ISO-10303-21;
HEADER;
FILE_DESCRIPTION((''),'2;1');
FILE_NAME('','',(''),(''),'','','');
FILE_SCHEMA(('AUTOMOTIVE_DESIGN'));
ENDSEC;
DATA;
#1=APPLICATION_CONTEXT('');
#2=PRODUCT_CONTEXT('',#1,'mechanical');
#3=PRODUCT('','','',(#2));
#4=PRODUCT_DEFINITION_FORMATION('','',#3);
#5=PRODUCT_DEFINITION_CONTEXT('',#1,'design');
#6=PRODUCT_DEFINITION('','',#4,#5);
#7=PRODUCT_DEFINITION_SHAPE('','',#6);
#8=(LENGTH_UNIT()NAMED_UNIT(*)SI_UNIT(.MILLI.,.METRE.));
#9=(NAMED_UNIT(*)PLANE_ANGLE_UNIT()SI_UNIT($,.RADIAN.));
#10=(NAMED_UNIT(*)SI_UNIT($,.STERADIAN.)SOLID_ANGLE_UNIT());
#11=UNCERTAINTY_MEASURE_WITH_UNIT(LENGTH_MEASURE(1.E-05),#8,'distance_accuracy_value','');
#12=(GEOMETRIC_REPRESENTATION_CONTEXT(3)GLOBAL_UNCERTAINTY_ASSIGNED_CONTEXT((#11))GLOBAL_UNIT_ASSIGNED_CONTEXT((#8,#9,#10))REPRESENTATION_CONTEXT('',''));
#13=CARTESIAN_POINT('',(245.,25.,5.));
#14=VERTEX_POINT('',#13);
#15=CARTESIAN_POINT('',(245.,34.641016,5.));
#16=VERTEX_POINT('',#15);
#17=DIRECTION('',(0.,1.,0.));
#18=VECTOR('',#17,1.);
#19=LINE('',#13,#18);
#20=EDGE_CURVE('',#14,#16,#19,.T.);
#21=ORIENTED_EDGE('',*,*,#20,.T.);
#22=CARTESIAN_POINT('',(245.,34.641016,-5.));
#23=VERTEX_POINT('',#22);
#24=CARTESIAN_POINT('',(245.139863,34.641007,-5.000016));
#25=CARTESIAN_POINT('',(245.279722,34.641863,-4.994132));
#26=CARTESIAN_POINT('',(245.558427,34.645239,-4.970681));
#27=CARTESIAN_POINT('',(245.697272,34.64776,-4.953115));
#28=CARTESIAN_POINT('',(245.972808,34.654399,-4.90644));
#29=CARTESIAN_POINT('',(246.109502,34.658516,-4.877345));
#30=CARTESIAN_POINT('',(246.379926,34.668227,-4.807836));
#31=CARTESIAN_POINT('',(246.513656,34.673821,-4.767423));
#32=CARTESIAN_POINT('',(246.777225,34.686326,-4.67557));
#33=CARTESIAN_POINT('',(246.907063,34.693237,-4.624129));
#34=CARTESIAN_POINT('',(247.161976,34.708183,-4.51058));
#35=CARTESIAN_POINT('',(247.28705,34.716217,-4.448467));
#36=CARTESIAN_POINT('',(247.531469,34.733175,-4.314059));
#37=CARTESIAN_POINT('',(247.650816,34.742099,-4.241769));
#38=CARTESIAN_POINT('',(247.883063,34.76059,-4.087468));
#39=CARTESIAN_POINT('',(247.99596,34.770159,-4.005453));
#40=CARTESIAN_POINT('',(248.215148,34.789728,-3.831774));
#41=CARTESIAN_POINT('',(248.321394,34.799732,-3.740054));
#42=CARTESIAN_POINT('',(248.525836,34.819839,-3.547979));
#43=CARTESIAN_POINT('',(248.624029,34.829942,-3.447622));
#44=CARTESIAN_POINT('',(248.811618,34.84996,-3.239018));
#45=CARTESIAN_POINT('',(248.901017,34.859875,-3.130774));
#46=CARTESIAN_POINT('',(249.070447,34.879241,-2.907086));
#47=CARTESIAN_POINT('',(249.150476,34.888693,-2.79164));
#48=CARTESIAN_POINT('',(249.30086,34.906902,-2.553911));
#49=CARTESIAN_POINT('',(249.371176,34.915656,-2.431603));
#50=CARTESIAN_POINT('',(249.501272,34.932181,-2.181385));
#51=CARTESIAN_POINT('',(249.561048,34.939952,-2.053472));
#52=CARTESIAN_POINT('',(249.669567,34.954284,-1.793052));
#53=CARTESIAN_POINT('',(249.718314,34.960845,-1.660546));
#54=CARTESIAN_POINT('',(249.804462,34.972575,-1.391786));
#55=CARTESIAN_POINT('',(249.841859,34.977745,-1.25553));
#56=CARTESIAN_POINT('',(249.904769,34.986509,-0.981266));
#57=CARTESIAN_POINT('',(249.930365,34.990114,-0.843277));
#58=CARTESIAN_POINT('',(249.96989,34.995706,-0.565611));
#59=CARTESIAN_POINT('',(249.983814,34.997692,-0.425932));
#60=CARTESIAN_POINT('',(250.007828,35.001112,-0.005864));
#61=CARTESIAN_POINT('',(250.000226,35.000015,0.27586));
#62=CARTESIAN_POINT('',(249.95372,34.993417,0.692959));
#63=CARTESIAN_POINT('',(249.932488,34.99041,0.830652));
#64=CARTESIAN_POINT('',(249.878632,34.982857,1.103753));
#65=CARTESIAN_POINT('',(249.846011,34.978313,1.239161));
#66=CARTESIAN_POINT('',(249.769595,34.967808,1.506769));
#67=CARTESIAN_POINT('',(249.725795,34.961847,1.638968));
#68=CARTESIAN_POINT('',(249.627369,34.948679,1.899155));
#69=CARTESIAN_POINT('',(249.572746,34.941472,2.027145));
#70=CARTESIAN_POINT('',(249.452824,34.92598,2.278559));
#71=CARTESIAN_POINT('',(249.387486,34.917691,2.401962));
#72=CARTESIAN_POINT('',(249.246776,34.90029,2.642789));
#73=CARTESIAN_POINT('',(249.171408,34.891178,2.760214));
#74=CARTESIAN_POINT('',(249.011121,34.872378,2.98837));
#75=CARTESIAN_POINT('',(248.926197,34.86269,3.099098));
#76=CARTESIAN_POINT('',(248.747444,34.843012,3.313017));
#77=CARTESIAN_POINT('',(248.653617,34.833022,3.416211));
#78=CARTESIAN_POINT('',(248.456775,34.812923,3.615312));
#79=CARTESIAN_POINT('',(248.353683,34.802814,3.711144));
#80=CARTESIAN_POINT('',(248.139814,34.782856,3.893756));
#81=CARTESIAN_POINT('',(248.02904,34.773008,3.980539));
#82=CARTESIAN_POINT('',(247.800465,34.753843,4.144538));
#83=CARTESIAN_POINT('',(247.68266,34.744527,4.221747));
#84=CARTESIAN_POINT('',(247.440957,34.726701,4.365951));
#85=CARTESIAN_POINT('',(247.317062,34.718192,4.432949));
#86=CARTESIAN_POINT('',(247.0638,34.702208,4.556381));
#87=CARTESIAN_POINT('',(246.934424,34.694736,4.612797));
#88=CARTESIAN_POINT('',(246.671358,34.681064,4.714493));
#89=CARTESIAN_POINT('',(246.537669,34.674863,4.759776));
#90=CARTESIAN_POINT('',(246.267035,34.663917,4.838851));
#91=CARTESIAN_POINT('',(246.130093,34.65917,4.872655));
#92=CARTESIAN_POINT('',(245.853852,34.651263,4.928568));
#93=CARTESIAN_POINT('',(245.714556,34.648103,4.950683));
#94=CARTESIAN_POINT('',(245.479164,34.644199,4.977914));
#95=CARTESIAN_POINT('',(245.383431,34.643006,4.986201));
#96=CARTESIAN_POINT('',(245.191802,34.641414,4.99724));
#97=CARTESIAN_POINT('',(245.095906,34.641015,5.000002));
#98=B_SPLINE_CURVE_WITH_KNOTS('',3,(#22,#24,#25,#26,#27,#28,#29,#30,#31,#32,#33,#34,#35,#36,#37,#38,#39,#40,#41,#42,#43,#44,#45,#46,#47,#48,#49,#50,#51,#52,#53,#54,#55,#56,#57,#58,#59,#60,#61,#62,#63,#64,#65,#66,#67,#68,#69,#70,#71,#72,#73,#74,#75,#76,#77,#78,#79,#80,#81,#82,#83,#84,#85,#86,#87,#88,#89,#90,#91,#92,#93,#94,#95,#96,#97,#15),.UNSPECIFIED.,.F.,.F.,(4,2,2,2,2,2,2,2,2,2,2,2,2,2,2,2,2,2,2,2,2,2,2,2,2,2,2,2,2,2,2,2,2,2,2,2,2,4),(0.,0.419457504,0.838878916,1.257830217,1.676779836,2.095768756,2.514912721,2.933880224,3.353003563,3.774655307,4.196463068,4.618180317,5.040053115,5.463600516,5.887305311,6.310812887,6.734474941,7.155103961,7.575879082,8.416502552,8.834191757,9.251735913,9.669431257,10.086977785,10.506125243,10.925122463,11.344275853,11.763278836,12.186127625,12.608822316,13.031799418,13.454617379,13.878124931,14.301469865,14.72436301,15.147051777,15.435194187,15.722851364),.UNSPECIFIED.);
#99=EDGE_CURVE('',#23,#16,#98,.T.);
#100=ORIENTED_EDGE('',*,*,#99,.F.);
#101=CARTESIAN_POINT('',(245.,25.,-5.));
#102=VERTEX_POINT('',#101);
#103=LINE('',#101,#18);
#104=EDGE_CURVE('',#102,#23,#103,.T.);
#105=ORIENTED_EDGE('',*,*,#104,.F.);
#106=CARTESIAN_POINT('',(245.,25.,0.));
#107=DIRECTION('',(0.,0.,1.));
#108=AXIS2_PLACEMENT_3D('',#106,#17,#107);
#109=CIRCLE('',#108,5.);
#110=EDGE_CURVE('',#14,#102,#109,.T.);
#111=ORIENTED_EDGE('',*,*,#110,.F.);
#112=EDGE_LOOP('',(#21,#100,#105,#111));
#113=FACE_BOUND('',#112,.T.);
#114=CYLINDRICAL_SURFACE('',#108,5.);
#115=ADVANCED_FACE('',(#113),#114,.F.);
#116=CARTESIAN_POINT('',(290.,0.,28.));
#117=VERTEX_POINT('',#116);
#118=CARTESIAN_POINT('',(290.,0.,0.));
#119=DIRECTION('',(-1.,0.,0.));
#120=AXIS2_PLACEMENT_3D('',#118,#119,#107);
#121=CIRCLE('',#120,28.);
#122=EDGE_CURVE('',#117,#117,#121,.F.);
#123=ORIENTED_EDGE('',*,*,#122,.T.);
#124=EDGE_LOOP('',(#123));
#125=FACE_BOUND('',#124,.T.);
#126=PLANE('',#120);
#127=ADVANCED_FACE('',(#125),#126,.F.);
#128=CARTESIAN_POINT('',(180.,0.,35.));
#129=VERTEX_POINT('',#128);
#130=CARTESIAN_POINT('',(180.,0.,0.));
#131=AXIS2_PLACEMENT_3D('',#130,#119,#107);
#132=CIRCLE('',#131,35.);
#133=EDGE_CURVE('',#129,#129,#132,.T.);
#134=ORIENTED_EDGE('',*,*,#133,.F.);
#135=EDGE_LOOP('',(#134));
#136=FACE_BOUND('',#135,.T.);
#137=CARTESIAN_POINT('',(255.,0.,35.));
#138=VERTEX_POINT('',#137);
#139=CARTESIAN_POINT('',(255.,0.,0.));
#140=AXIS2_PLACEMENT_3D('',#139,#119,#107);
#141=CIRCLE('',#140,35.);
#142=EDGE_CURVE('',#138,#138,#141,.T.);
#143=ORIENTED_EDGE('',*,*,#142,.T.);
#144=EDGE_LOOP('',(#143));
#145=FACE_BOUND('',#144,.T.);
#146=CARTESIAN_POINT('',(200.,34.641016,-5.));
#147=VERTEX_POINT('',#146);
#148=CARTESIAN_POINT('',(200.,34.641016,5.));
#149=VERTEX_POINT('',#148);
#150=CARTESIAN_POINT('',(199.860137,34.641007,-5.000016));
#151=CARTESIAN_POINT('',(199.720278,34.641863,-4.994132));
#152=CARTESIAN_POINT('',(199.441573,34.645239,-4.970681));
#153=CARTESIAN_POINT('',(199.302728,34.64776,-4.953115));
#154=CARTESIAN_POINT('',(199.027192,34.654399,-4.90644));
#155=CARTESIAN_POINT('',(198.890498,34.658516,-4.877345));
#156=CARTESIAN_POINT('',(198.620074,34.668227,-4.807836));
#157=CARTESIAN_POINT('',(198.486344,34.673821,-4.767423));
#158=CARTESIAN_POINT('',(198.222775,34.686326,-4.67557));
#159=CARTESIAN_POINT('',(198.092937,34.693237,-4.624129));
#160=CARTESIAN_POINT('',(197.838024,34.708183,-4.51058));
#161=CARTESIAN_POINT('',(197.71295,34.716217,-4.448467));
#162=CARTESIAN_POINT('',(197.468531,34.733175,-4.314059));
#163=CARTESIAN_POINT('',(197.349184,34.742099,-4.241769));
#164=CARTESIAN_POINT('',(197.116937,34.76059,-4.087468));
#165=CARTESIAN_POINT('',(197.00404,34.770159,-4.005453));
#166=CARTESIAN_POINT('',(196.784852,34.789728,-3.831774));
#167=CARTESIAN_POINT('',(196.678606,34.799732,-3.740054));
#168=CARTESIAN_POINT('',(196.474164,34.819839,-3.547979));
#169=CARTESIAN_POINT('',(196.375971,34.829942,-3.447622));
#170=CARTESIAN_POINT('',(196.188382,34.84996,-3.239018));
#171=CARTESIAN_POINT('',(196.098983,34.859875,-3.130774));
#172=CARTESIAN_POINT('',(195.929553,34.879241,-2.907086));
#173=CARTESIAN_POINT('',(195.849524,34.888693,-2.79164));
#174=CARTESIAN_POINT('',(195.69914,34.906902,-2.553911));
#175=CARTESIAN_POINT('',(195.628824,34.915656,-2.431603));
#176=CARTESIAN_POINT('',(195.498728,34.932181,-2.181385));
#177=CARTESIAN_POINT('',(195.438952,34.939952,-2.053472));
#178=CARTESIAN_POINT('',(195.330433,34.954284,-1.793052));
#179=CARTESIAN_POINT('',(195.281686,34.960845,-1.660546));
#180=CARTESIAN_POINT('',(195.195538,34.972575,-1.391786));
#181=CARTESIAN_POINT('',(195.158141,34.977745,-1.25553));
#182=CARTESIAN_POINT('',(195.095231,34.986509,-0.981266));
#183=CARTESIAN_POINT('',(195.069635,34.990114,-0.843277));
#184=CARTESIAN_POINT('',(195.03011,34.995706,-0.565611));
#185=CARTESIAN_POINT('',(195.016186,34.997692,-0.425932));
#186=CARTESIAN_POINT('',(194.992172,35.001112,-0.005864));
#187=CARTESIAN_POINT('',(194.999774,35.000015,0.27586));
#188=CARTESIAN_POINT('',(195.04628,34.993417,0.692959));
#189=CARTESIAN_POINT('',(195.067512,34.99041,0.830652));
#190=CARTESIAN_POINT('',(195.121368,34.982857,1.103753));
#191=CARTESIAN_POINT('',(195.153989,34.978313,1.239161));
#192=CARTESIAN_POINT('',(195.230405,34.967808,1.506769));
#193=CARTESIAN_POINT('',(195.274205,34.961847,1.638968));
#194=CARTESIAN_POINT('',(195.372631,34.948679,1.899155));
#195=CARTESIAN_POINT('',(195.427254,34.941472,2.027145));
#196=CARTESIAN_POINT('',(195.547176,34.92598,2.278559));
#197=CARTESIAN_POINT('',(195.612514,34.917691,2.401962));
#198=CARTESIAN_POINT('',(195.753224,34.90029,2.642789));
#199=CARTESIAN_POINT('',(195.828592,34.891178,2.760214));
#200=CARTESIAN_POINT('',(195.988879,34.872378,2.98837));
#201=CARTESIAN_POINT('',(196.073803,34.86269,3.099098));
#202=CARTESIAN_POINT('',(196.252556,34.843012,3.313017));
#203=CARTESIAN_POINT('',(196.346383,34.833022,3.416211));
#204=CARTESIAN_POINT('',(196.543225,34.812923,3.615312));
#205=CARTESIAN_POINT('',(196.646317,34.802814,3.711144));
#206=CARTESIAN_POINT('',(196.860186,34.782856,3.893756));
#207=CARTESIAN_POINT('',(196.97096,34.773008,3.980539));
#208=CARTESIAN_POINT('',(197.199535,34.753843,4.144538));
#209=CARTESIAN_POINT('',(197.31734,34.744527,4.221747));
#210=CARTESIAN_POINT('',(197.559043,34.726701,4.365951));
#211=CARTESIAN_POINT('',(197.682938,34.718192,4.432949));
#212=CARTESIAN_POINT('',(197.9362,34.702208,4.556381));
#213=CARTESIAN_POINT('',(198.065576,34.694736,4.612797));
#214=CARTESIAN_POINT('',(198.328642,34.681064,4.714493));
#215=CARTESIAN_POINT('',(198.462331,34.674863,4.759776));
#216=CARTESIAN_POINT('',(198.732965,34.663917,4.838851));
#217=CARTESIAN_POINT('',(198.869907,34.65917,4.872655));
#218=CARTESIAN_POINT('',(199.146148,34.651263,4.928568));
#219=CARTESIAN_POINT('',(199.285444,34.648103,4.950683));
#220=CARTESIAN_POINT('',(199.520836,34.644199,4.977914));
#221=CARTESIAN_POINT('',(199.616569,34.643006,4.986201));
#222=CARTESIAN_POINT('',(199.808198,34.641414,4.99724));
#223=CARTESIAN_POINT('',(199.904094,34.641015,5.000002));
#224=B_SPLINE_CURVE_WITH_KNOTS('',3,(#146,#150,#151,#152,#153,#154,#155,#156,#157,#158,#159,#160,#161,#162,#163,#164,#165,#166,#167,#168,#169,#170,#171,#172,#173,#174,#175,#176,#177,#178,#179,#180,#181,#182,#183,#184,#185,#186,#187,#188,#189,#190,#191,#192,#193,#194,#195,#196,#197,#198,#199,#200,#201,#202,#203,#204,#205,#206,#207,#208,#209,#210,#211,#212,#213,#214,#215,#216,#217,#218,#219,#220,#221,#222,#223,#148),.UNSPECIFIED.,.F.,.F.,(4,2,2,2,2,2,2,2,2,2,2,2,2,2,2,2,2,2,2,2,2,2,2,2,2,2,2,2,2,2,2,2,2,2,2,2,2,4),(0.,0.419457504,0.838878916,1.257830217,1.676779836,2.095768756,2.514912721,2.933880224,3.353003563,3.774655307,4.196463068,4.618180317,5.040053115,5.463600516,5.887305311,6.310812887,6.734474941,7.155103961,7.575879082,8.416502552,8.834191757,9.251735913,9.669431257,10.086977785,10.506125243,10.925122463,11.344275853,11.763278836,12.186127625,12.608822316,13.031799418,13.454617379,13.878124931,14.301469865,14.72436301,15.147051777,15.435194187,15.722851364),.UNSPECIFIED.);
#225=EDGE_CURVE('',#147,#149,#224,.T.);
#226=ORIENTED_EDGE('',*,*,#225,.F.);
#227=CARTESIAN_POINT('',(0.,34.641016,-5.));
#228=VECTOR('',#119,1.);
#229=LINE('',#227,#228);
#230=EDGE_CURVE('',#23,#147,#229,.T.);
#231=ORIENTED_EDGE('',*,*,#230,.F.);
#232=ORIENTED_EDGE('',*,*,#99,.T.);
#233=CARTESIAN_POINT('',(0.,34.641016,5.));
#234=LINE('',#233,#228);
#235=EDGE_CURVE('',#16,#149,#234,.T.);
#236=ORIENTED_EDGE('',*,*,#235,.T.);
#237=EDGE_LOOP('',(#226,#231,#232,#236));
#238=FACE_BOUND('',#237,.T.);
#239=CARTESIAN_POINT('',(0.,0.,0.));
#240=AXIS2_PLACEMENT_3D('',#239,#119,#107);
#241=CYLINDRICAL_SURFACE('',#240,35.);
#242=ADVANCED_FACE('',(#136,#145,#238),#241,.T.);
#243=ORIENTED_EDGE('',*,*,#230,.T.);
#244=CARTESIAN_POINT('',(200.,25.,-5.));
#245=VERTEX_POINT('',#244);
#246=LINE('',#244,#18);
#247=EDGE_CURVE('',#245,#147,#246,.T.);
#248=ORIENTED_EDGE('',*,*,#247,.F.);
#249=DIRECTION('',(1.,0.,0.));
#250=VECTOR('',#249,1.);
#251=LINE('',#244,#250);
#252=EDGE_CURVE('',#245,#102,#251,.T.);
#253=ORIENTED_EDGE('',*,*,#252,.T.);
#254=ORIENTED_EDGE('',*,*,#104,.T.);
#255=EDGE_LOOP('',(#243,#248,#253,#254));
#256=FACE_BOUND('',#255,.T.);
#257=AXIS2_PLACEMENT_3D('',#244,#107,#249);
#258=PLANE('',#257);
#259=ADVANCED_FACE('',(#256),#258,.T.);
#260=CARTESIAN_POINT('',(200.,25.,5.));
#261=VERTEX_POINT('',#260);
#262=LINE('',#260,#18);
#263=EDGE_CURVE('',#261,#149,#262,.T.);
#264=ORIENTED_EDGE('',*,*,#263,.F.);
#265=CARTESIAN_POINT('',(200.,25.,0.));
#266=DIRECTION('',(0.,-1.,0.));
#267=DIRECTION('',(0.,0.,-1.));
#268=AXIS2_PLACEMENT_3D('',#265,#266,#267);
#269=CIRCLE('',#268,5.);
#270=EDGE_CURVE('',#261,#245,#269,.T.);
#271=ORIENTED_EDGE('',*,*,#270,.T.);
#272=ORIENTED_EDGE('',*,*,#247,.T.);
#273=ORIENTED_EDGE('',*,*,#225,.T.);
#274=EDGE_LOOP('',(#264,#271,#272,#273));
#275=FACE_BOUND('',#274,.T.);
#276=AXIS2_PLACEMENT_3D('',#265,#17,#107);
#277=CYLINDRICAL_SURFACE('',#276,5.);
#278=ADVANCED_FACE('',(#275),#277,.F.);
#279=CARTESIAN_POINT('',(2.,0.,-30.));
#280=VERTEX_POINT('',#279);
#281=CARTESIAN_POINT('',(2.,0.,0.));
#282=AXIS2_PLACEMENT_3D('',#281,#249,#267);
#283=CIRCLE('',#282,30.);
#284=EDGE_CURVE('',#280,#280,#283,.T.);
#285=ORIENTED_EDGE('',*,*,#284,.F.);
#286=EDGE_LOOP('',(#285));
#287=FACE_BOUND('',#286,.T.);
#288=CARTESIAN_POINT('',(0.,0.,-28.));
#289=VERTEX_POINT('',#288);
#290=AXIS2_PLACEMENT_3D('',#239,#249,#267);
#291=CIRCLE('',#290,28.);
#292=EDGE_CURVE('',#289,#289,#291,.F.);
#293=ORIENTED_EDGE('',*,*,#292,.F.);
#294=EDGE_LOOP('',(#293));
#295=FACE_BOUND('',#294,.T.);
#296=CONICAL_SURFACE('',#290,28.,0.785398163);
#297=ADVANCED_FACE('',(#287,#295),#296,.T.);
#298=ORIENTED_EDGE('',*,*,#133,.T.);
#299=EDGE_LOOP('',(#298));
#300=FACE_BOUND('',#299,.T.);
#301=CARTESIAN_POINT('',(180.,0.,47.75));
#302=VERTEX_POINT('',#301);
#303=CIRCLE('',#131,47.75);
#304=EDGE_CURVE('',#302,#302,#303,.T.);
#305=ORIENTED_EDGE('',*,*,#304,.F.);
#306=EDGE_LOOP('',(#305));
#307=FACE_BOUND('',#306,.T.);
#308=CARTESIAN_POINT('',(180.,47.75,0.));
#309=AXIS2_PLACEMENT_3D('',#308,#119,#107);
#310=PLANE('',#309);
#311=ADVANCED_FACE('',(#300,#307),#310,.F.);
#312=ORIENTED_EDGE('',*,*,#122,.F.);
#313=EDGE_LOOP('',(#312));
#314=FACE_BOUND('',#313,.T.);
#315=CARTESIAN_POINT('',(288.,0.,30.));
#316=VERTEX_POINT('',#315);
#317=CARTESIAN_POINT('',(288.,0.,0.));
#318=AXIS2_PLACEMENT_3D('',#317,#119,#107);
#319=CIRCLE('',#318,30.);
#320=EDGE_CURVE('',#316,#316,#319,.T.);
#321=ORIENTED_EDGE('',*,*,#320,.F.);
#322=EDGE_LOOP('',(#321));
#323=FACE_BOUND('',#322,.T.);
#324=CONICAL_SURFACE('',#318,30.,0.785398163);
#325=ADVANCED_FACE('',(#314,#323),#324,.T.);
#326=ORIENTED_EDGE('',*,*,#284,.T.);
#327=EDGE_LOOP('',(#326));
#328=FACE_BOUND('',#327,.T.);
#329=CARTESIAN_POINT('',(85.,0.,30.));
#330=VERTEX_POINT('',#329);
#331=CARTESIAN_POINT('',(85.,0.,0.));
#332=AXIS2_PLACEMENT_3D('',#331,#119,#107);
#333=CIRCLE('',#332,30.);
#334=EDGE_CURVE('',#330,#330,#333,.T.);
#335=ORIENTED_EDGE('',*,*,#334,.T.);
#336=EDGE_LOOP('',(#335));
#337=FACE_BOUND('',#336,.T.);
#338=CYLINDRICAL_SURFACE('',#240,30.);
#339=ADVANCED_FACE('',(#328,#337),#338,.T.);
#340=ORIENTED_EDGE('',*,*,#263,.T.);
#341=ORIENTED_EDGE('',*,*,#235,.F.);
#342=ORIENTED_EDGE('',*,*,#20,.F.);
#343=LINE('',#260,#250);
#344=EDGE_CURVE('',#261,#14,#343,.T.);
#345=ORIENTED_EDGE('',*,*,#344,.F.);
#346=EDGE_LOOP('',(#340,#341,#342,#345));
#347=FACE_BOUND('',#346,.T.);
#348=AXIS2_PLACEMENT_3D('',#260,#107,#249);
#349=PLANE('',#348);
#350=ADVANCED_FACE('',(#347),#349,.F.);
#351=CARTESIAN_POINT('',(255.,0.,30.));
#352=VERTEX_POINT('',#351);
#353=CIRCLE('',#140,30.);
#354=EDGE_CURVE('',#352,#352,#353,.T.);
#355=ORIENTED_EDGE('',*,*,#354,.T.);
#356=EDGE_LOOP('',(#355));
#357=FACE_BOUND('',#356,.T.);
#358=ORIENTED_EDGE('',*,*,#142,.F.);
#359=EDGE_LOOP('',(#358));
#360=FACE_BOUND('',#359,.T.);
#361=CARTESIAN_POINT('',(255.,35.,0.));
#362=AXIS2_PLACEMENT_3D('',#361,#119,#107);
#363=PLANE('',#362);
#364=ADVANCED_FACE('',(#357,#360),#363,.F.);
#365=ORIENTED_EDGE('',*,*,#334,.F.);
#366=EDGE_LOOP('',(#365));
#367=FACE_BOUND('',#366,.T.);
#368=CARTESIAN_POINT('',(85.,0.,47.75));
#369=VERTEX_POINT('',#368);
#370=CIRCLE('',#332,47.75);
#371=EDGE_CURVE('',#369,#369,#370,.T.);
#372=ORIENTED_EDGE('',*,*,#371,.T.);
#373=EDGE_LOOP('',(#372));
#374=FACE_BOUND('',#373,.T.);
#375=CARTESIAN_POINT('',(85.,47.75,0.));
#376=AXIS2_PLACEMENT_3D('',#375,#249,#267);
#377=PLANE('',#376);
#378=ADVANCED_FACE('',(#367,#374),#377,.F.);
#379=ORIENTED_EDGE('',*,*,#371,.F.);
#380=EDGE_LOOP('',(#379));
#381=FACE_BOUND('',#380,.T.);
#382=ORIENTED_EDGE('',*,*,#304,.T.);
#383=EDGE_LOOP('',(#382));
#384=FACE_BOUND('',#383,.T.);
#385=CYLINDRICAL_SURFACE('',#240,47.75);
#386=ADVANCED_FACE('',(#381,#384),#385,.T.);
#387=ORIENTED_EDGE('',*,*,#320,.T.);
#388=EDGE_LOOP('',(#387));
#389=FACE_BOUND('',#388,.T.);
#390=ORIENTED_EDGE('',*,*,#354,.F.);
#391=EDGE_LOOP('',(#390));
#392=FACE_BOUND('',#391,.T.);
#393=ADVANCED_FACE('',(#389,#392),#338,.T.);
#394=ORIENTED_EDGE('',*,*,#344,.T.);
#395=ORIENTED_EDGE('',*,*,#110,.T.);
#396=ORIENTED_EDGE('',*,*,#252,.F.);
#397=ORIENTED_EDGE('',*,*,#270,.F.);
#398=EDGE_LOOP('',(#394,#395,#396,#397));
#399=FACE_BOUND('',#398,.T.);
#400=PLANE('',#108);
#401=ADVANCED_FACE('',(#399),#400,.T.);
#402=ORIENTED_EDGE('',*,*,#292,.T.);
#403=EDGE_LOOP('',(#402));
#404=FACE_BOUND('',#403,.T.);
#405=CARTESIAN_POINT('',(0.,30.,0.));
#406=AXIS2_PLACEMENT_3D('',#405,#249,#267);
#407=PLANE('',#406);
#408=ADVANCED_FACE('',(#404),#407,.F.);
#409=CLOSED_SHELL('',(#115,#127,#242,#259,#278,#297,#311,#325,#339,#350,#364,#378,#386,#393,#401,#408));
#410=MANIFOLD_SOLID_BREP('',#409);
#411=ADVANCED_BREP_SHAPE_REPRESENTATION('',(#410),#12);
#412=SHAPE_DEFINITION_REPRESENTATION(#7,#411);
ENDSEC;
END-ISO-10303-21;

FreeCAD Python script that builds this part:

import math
import FreeCAD as App
import Part
import Sketcher


def edges_at(feature, points):
    """Names of the edges that pass closest to the given points."""
    edges = feature.Shape.Edges
    near = lambda p: min(range(len(edges)), key=lambda i: edges[i].distToShape(Part.Vertex(*p))[0])
    return sorted({f"Edge{near(p) + 1}" for p in points})


def add_polygon(sketch, points):
    """Adds a closed chain of lines whose ends are joined by coincident constraints."""
    first, n = sketch.GeometryCount, len(points)
    for a, b in zip(points, points[1:] + points[:1]):
        sketch.addGeometry(Part.LineSegment(App.Vector(*a, 0), App.Vector(*b, 0)), False)
    for i in range(n):
        sketch.addConstraint(Sketcher.Constraint("Coincident", first + i, 2, first + (i + 1) % n, 1))

doc = App.newDocument("Part")
body = doc.addObject("PartDesign::Body", "Body")

sketch1 = body.newObject("Sketcher::SketchObject", "Sketch")
sketch1.AttachmentSupport = (doc.getObject("XY_Plane"), [""])
sketch1.MapMode = "FlatFace"
add_polygon(sketch1, [(0, 0), (290, 0), (290, 30), (255, 30), (255, 35), (180, 35), (180, 48), (85, 48), (85, 30), (0, 30)])
sketch1.addConstraint([
    Sketcher.Constraint("Horizontal", 0),
    Sketcher.Constraint("Vertical", 1),
    Sketcher.Constraint("Horizontal", 2),
    Sketcher.Constraint("Vertical", 3),
    Sketcher.Constraint("Horizontal", 4),
    Sketcher.Constraint("Vertical", 5),
    Sketcher.Constraint("Horizontal", 6),
    Sketcher.Constraint("Vertical", 7),
    Sketcher.Constraint("Horizontal", 8),
    Sketcher.Constraint("Vertical", 9),
    Sketcher.Constraint("Coincident", 9, 2, -1, 1),
    Sketcher.Constraint("Horizontal", 2, 2, 7, 2),
    Sketcher.Constraint("DistanceX", 0, 1, 0, 2, 290.0),
    Sketcher.Constraint("DistanceX", 2, 2, 2, 1, 35.0),
    Sketcher.Constraint("DistanceX", 4, 2, 4, 1, 75.0),
    Sketcher.Constraint("DistanceX", 6, 2, 6, 1, 95.0),
    Sketcher.Constraint("DistanceY", 1, 1, 1, 2, 30.0),
    Sketcher.Constraint("DistanceY", 3, 1, 3, 2, 5.0),
    Sketcher.Constraint("DistanceY", 5, 1, 5, 2, 12.75),
])
revolution = body.newObject("PartDesign::Revolution", "Revolution")
revolution.Profile = sketch1
revolution.ReferenceAxis = (sketch1, ["H_Axis"])
revolution.Angle = 360
doc.recompute()

chamfer = body.newObject("PartDesign::Chamfer", "Chamfer")
chamfer.Base = (revolution, edges_at(revolution, [(290, 0, -30), (0, 0, -30)]))
chamfer.Size = 2

sketch2 = body.newObject("Sketcher::SketchObject", "Sketch001")
sketch2.AttachmentSupport = (doc.getObject("XZ_Plane"), [""])
sketch2.MapMode = "FlatFace"
sketch2.AttachmentOffset = App.Placement(App.Vector(0, 0, -35), App.Rotation())
sketch2.addGeometry([
    Part.LineSegment(App.Vector(200, 5, 0), App.Vector(245, 5, 0)),
    Part.ArcOfCircle(Part.Circle(App.Vector(245, 0, 0), App.Vector(0, 0, 1), 5), math.radians(-90), math.radians(90)),
    Part.LineSegment(App.Vector(245, -5, 0), App.Vector(200, -5, 0)),
    Part.ArcOfCircle(Part.Circle(App.Vector(200, 0, 0), App.Vector(0, 0, 1), 5), math.radians(90), math.radians(270)),
], False)
sketch2.addConstraint([
    Sketcher.Constraint("Tangent", 0, 2, 1, 2),
    Sketcher.Constraint("Tangent", 1, 1, 2, 1),
    Sketcher.Constraint("Tangent", 2, 2, 3, 2),
    Sketcher.Constraint("Tangent", 3, 1, 0, 1),
    Sketcher.Constraint("Horizontal", 0),
    Sketcher.Constraint("Horizontal", 2),
    Sketcher.Constraint("PointOnObject", 1, 3, -1),
    Sketcher.Constraint("Radius", 1, 5.0),
    Sketcher.Constraint("DistanceX", 0, 1, 0, 2, 45.0),
    Sketcher.Constraint("DistanceX", -1, 1, 1, 3, 245.0),
])
pocket1 = body.newObject("PartDesign::Pocket", "Pocket")
pocket1.Profile = sketch2
pocket1.Length = 10
pocket1.Reversed = True

doc.recompute()
